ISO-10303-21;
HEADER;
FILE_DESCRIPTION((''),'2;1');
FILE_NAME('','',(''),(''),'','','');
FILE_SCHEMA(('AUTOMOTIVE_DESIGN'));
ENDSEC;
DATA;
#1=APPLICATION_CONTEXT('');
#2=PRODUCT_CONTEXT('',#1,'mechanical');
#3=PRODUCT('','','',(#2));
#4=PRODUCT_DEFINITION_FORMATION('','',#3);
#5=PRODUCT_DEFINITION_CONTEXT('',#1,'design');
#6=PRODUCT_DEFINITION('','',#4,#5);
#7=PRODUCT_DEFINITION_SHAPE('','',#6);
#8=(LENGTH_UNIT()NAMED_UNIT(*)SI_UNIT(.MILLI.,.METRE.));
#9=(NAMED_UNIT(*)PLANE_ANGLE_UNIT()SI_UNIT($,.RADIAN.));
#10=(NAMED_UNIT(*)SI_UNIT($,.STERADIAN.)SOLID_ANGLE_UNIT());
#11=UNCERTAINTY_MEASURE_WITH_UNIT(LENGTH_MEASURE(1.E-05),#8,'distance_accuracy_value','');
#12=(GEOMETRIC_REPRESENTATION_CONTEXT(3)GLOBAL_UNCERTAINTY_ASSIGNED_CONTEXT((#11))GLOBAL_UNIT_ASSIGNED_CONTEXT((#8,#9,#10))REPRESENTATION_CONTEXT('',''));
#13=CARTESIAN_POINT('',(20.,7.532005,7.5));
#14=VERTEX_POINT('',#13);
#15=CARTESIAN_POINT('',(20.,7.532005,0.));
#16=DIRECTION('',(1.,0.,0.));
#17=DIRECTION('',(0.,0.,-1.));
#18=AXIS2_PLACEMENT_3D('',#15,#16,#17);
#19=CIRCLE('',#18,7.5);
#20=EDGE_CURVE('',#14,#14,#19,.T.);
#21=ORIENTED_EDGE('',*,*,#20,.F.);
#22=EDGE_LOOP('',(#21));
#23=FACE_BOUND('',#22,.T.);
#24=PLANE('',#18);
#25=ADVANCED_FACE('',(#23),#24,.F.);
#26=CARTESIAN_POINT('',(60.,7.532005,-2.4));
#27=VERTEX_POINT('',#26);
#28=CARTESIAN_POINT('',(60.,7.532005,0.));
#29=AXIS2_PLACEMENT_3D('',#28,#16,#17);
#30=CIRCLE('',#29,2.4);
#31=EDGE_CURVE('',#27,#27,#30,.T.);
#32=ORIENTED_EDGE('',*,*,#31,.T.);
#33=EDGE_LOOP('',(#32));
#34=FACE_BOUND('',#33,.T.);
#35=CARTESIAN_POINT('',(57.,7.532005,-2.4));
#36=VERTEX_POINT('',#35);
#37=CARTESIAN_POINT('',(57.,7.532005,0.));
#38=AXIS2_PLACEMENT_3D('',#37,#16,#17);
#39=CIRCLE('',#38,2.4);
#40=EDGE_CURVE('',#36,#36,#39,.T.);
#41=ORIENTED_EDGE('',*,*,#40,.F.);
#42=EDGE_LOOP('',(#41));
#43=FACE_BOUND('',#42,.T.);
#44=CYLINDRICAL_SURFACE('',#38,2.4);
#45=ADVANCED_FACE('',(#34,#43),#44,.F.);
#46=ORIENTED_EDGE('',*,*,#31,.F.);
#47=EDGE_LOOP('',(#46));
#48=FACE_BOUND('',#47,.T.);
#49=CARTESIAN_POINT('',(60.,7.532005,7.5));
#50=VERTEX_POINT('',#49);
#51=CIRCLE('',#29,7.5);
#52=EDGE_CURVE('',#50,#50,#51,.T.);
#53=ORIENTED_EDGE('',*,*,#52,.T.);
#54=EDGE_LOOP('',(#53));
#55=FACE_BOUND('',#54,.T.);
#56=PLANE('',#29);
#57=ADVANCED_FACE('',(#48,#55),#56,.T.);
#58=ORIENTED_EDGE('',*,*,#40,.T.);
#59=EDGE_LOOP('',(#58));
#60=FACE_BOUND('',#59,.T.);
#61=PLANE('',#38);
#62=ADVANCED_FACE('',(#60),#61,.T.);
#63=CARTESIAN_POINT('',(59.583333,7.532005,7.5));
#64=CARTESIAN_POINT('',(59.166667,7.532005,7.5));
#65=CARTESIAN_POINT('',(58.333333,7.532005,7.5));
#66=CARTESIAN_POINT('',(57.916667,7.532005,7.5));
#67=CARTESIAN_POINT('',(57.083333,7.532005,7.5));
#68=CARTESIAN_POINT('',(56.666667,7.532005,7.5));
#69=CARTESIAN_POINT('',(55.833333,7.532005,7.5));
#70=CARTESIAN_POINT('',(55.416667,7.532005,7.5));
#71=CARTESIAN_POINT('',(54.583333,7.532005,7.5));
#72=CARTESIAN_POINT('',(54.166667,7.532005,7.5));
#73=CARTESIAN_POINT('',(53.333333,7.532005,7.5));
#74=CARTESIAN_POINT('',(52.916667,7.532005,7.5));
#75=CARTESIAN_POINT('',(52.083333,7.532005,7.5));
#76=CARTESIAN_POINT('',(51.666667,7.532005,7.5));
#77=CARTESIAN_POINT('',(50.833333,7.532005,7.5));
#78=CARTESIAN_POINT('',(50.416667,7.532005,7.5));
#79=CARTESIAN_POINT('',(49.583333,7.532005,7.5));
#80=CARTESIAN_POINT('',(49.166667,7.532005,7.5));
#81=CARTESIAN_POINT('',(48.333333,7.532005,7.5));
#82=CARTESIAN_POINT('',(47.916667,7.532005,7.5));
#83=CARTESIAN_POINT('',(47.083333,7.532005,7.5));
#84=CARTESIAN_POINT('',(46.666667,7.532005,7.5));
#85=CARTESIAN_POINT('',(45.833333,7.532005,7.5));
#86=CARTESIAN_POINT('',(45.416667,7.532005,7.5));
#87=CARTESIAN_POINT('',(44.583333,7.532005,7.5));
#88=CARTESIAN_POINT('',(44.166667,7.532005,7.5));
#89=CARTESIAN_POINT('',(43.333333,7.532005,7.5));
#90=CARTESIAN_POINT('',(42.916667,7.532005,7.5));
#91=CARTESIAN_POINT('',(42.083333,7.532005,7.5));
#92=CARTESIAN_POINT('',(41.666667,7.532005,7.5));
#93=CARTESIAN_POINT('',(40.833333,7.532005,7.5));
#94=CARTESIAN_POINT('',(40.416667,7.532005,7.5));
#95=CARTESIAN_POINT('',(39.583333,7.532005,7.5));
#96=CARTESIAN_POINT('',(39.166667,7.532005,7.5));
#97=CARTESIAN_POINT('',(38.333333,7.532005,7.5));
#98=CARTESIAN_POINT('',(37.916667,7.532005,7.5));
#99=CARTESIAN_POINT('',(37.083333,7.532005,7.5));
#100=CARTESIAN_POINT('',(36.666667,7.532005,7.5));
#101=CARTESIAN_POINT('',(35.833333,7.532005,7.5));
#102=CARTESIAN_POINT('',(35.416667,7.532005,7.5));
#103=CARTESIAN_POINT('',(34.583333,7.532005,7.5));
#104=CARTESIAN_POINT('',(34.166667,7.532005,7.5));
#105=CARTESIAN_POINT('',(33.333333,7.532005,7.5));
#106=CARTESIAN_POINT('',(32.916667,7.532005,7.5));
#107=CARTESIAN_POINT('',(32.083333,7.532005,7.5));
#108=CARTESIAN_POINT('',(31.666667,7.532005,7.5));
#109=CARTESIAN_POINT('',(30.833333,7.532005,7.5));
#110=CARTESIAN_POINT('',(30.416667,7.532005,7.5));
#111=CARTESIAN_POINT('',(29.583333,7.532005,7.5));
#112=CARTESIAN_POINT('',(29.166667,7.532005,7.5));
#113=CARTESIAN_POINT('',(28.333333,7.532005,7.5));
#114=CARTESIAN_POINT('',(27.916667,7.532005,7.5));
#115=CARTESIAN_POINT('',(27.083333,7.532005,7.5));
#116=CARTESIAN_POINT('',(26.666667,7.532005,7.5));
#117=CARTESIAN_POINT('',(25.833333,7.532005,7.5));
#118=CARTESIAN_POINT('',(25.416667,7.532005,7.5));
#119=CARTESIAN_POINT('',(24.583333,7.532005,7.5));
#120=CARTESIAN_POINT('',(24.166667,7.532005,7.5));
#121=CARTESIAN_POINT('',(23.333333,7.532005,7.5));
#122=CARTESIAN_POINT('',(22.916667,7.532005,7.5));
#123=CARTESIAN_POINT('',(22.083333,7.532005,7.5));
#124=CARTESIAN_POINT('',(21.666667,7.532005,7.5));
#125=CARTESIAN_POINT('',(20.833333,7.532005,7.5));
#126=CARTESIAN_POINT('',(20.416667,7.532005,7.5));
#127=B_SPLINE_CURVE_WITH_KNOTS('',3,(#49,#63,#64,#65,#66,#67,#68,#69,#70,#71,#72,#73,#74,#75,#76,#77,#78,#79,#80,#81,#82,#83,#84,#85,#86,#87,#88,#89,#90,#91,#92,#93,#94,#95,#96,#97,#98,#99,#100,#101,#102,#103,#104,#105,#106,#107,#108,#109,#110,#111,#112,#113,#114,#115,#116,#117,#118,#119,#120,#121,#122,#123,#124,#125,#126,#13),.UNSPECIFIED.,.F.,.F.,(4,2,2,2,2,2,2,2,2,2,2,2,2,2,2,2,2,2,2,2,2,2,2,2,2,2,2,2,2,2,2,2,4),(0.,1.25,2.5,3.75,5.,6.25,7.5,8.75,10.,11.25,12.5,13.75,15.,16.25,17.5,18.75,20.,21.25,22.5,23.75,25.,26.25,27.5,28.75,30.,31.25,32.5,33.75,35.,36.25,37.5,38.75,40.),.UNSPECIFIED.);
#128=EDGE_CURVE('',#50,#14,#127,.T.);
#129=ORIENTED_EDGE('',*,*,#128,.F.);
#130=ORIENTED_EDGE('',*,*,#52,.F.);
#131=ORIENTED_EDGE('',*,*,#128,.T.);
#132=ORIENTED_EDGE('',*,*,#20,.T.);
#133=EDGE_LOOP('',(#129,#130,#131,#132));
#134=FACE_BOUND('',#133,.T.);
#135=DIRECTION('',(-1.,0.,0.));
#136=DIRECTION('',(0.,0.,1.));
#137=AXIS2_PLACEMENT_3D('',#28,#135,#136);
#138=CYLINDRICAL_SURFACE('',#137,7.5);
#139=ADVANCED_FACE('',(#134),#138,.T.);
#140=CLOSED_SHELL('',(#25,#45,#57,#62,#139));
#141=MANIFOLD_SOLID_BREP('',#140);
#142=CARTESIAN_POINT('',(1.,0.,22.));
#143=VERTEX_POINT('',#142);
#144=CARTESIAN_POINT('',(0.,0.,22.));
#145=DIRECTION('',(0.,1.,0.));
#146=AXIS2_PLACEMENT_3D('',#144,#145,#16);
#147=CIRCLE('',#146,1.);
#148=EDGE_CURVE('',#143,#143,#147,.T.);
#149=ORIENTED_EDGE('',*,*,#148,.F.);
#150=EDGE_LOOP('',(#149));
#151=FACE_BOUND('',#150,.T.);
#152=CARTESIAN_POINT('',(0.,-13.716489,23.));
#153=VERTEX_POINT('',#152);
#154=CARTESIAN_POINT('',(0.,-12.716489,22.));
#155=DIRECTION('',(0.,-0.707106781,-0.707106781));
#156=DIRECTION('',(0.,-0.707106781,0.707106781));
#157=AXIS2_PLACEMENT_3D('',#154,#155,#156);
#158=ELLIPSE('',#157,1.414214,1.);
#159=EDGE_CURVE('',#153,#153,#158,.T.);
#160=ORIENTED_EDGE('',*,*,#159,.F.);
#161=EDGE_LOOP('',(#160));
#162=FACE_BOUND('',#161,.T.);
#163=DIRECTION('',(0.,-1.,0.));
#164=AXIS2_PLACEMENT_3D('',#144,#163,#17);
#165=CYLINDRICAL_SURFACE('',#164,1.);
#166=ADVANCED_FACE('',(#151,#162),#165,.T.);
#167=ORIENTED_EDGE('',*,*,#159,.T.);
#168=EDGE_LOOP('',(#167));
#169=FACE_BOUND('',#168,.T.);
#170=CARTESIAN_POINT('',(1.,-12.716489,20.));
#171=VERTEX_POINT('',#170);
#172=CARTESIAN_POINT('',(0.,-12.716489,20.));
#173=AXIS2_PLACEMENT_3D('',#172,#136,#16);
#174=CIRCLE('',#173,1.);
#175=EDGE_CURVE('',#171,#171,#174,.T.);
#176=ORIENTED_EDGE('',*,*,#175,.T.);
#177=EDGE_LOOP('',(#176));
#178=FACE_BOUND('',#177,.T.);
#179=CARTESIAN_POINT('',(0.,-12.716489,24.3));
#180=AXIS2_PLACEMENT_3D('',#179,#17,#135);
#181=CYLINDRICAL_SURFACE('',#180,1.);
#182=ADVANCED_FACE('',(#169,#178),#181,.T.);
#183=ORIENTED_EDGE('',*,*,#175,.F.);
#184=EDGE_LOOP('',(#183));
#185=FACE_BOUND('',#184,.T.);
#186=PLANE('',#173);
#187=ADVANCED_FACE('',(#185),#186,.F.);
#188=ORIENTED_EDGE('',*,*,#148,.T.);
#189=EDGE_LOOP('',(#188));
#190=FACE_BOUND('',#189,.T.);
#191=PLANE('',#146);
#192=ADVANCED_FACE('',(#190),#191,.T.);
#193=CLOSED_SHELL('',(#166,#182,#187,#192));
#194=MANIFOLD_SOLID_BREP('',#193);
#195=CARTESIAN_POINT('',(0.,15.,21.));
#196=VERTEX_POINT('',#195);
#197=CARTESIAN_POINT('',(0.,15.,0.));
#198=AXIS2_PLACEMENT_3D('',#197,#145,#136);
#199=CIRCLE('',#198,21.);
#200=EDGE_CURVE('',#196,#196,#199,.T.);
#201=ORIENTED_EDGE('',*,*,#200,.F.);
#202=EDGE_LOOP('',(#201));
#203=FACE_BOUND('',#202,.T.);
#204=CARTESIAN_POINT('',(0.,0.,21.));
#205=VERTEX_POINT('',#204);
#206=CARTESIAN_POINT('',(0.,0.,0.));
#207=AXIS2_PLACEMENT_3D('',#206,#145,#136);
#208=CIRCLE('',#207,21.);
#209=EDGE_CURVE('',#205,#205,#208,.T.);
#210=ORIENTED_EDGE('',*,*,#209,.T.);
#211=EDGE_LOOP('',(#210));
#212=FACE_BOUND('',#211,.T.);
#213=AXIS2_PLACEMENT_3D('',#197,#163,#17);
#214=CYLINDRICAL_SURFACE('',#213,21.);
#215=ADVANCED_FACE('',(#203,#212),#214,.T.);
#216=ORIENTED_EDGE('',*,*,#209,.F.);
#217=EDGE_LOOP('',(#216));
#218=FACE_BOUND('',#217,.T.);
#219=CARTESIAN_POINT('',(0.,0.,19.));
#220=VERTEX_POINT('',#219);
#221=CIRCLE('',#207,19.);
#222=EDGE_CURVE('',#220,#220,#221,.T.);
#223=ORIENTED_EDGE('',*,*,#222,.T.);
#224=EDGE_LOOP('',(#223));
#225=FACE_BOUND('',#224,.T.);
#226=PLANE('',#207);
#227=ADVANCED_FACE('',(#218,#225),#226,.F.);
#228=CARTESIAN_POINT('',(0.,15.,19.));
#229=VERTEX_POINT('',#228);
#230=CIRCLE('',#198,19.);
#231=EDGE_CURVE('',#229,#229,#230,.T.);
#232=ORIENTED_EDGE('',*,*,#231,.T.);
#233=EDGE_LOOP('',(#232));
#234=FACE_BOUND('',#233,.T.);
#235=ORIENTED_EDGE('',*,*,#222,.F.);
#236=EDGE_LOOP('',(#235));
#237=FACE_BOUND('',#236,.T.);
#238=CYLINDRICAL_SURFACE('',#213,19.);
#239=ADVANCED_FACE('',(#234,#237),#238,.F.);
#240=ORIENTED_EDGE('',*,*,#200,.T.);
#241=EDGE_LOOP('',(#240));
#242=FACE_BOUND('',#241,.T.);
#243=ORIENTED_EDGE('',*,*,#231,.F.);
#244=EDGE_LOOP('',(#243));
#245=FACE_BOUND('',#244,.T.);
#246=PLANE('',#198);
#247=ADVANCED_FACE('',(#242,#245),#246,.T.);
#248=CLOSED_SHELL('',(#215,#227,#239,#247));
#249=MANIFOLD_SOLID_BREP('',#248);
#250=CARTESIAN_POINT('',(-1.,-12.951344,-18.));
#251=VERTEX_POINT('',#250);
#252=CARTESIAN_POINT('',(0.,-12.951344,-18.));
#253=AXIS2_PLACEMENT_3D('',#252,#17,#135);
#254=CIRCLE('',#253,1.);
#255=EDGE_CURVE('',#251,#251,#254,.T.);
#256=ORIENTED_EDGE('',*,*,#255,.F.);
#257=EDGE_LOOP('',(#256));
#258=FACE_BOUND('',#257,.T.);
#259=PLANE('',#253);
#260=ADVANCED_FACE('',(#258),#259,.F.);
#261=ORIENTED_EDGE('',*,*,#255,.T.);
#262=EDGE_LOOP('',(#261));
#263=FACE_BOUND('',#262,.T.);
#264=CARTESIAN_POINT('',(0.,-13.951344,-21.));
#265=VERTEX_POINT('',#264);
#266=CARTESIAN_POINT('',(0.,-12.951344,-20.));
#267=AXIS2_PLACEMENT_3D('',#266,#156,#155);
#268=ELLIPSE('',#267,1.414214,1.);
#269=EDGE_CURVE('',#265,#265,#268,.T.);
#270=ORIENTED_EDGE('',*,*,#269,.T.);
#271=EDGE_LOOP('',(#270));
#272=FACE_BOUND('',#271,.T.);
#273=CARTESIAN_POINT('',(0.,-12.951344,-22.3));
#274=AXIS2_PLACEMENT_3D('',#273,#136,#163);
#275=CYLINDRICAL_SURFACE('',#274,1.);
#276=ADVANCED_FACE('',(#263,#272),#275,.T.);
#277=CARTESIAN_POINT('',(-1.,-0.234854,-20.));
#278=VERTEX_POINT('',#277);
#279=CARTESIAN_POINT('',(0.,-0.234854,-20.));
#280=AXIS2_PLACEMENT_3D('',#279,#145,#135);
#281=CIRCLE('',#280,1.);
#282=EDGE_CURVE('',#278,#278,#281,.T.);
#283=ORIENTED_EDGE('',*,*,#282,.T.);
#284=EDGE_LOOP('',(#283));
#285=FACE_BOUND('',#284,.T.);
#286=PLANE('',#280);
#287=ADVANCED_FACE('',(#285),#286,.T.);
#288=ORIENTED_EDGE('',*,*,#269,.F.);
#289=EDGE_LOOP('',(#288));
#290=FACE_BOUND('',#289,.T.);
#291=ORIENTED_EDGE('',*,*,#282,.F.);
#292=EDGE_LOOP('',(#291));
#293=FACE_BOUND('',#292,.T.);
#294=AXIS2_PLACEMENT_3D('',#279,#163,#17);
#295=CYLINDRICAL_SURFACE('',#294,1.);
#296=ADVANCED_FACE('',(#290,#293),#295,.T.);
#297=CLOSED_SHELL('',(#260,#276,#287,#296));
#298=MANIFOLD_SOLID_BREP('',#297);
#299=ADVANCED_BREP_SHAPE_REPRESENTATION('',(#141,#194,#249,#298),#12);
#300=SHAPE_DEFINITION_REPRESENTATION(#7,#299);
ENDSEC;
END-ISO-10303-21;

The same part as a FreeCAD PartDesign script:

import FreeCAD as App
import Part
import Sketcher

V = App.Vector

doc = App.newDocument("Part")
body = doc.addObject("PartDesign::Body", "Body")

# Sketch on XZ plane
sketch1 = body.newObject("Sketcher::SketchObject", "Sketch")
sketch1.AttachmentSupport = (doc.getObject("XZ_Plane"), [""])
sketch1.MapMode = "FlatFace"
sketch1.addGeometry([
    Part.Circle(V(0, 0, 0), V(0, 0, 1), 21),
    Part.Circle(V(0, 0, 0), V(0, 0, 1), 19),
], False)
sketch1.addConstraint([
    Sketcher.Constraint("Coincident", 0, 3, -1, 1),
    Sketcher.Constraint("Coincident", 1, 3, -1, 1),
    Sketcher.Constraint("Diameter", 0, 42.0),
    Sketcher.Constraint("Diameter", 1, 38.0),
])
pad1 = body.newObject("PartDesign::Pad", "Pad")
pad1.Profile = sketch1
pad1.Length = 15
pad1.Reversed = True
body2 = doc.addObject("PartDesign::Body", "Body001")

# Sketch on YZ plane
sketch2 = body2.newObject("Sketcher::SketchObject", "Sketch001")
sketch2.AttachmentSupport = (doc.getObject("YZ_Plane001"), [""])
sketch2.MapMode = "FlatFace"
sketch2.AttachmentOffset = App.Placement(V(0, 0, 20), App.Rotation())
sketch2.addGeometry(Part.Circle(V(7.532005, 0, 0), V(0, 0, 1), 7.5), False)
sketch2.addConstraint([
    Sketcher.Constraint("PointOnObject", 0, 3, -1),
    Sketcher.Constraint("Diameter", 0, 15.0),
    Sketcher.Constraint("DistanceX", -1, 1, 0, 3, 7.532005),
])
pad2 = body2.newObject("PartDesign::Pad", "Pad001")
pad2.Profile = sketch2
pad2.Length = 40

# Sketch on YZ plane
sketch3 = body2.newObject("Sketcher::SketchObject", "Sketch002")
sketch3.AttachmentSupport = (doc.getObject("YZ_Plane001"), [""])
sketch3.MapMode = "FlatFace"
sketch3.AttachmentOffset = App.Placement(V(0, 0, 60), App.Rotation())
sketch3.addGeometry(Part.Circle(V(7.532005, 0, 0), V(0, 0, 1), 2.4), False)
sketch3.addConstraint([
    Sketcher.Constraint("PointOnObject", 0, 3, -1),
    Sketcher.Constraint("Diameter", 0, 4.8),
    Sketcher.Constraint("DistanceX", -1, 1, 0, 3, 7.532005),
])
pocket1 = body2.newObject("PartDesign::Pocket", "Pocket")
pocket1.Profile = sketch3
pocket1.Length = 3
body3 = doc.addObject("PartDesign::Body", "Body002")

# Sketch on XZ plane
sketch4 = body3.newObject("Sketcher::SketchObject", "Sketch003")
sketch4.AttachmentSupport = (doc.getObject("XZ_Plane002"), [""])
sketch4.MapMode = "FlatFace"
sketch4.addGeometry(Part.Circle(V(0, 22, 0), V(0, 0, 1), 1), False)
sketch4.addConstraint([
    Sketcher.Constraint("PointOnObject", 0, 3, -2),
    Sketcher.Constraint("Diameter", 0, 2.0),
    Sketcher.Constraint("DistanceY", -1, 1, 0, 3, 22.0),
])

# Sketch on YZ plane
sketch5 = body3.newObject("Sketcher::SketchObject", "Sketch004")
sketch5.AttachmentSupport = (doc.getObject("YZ_Plane002"), [""])
sketch5.MapMode = "FlatFace"
sketch5.addGeometry([
    Part.LineSegment(V(0, 22, 0), V(-12.716489, 22, 0)),
    Part.LineSegment(V(-12.716489, 22, 0), V(-12.716489, 20, 0)),
], False)
sketch5.addConstraint([
    Sketcher.Constraint("Coincident", 0, 2, 1, 1),
    Sketcher.Constraint("Horizontal", 0),
    Sketcher.Constraint("Vertical", 1),
    Sketcher.Constraint("PointOnObject", 0, 1, -2),
    Sketcher.Constraint("DistanceY", 1, 2, 1, 1, 2.0),
    Sketcher.Constraint("DistanceY", -1, 1, 0, 1, 22.0),
    Sketcher.Constraint("DistanceX", 0, 2, 0, 1, 12.716489),
])
doc.recompute()

additivepipe = body3.newObject("PartDesign::AdditivePipe", "AdditivePipe")
additivepipe.Profile = sketch4
additivepipe.Spine = (sketch5, ["Edge1", "Edge2"])
additivepipe.Transition = "Right corner"
body4 = doc.addObject("PartDesign::Body", "Body003")

# Sketch on XZ plane
sketch6 = body4.newObject("Sketcher::SketchObject", "Sketch005")
sketch6.AttachmentSupport = (doc.getObject("XZ_Plane003"), [""])
sketch6.MapMode = "FlatFace"
sketch6.AttachmentOffset = App.Placement(V(0, 0, 0.234854), App.Rotation())
sketch6.addGeometry(Part.Circle(V(0, -20, 0), V(0, 0, 1), 1), False)
sketch6.addConstraint([
    Sketcher.Constraint("PointOnObject", 0, 3, -2),
    Sketcher.Constraint("Diameter", 0, 2.0),
    Sketcher.Constraint("DistanceY", 0, 3, -1, 1, 20.0),
])

# Sketch on YZ plane
sketch7 = body4.newObject("Sketcher::SketchObject", "Sketch006")
sketch7.AttachmentSupport = (doc.getObject("YZ_Plane003"), [""])
sketch7.MapMode = "FlatFace"
sketch7.addGeometry([
    Part.LineSegment(V(-0.234854, -20, 0), V(-12.951344, -20, 0)),
    Part.LineSegment(V(-12.951344, -20, 0), V(-12.951344, -18, 0)),
], False)
sketch7.addConstraint([
    Sketcher.Constraint("Coincident", 0, 2, 1, 1),
    Sketcher.Constraint("Horizontal", 0),
    Sketcher.Constraint("Vertical", 1),
    Sketcher.Constraint("DistanceY", 1, 1, 1, 2, 2.0),
    Sketcher.Constraint("DistanceY", 0, 1, -1, 1, 20.0),
    Sketcher.Constraint("DistanceX", 0, 2, 0, 1, 12.716489),
    Sketcher.Constraint("DistanceX", 0, 1, -1, 1, 0.234854),
])
doc.recompute()

additivepipe2 = body4.newObject("PartDesign::AdditivePipe", "AdditivePipe001")
additivepipe2.Profile = sketch6
additivepipe2.Spine = (sketch7, ["Edge1", "Edge2"])
additivepipe2.Transition = "Right corner"

doc.recompute()
